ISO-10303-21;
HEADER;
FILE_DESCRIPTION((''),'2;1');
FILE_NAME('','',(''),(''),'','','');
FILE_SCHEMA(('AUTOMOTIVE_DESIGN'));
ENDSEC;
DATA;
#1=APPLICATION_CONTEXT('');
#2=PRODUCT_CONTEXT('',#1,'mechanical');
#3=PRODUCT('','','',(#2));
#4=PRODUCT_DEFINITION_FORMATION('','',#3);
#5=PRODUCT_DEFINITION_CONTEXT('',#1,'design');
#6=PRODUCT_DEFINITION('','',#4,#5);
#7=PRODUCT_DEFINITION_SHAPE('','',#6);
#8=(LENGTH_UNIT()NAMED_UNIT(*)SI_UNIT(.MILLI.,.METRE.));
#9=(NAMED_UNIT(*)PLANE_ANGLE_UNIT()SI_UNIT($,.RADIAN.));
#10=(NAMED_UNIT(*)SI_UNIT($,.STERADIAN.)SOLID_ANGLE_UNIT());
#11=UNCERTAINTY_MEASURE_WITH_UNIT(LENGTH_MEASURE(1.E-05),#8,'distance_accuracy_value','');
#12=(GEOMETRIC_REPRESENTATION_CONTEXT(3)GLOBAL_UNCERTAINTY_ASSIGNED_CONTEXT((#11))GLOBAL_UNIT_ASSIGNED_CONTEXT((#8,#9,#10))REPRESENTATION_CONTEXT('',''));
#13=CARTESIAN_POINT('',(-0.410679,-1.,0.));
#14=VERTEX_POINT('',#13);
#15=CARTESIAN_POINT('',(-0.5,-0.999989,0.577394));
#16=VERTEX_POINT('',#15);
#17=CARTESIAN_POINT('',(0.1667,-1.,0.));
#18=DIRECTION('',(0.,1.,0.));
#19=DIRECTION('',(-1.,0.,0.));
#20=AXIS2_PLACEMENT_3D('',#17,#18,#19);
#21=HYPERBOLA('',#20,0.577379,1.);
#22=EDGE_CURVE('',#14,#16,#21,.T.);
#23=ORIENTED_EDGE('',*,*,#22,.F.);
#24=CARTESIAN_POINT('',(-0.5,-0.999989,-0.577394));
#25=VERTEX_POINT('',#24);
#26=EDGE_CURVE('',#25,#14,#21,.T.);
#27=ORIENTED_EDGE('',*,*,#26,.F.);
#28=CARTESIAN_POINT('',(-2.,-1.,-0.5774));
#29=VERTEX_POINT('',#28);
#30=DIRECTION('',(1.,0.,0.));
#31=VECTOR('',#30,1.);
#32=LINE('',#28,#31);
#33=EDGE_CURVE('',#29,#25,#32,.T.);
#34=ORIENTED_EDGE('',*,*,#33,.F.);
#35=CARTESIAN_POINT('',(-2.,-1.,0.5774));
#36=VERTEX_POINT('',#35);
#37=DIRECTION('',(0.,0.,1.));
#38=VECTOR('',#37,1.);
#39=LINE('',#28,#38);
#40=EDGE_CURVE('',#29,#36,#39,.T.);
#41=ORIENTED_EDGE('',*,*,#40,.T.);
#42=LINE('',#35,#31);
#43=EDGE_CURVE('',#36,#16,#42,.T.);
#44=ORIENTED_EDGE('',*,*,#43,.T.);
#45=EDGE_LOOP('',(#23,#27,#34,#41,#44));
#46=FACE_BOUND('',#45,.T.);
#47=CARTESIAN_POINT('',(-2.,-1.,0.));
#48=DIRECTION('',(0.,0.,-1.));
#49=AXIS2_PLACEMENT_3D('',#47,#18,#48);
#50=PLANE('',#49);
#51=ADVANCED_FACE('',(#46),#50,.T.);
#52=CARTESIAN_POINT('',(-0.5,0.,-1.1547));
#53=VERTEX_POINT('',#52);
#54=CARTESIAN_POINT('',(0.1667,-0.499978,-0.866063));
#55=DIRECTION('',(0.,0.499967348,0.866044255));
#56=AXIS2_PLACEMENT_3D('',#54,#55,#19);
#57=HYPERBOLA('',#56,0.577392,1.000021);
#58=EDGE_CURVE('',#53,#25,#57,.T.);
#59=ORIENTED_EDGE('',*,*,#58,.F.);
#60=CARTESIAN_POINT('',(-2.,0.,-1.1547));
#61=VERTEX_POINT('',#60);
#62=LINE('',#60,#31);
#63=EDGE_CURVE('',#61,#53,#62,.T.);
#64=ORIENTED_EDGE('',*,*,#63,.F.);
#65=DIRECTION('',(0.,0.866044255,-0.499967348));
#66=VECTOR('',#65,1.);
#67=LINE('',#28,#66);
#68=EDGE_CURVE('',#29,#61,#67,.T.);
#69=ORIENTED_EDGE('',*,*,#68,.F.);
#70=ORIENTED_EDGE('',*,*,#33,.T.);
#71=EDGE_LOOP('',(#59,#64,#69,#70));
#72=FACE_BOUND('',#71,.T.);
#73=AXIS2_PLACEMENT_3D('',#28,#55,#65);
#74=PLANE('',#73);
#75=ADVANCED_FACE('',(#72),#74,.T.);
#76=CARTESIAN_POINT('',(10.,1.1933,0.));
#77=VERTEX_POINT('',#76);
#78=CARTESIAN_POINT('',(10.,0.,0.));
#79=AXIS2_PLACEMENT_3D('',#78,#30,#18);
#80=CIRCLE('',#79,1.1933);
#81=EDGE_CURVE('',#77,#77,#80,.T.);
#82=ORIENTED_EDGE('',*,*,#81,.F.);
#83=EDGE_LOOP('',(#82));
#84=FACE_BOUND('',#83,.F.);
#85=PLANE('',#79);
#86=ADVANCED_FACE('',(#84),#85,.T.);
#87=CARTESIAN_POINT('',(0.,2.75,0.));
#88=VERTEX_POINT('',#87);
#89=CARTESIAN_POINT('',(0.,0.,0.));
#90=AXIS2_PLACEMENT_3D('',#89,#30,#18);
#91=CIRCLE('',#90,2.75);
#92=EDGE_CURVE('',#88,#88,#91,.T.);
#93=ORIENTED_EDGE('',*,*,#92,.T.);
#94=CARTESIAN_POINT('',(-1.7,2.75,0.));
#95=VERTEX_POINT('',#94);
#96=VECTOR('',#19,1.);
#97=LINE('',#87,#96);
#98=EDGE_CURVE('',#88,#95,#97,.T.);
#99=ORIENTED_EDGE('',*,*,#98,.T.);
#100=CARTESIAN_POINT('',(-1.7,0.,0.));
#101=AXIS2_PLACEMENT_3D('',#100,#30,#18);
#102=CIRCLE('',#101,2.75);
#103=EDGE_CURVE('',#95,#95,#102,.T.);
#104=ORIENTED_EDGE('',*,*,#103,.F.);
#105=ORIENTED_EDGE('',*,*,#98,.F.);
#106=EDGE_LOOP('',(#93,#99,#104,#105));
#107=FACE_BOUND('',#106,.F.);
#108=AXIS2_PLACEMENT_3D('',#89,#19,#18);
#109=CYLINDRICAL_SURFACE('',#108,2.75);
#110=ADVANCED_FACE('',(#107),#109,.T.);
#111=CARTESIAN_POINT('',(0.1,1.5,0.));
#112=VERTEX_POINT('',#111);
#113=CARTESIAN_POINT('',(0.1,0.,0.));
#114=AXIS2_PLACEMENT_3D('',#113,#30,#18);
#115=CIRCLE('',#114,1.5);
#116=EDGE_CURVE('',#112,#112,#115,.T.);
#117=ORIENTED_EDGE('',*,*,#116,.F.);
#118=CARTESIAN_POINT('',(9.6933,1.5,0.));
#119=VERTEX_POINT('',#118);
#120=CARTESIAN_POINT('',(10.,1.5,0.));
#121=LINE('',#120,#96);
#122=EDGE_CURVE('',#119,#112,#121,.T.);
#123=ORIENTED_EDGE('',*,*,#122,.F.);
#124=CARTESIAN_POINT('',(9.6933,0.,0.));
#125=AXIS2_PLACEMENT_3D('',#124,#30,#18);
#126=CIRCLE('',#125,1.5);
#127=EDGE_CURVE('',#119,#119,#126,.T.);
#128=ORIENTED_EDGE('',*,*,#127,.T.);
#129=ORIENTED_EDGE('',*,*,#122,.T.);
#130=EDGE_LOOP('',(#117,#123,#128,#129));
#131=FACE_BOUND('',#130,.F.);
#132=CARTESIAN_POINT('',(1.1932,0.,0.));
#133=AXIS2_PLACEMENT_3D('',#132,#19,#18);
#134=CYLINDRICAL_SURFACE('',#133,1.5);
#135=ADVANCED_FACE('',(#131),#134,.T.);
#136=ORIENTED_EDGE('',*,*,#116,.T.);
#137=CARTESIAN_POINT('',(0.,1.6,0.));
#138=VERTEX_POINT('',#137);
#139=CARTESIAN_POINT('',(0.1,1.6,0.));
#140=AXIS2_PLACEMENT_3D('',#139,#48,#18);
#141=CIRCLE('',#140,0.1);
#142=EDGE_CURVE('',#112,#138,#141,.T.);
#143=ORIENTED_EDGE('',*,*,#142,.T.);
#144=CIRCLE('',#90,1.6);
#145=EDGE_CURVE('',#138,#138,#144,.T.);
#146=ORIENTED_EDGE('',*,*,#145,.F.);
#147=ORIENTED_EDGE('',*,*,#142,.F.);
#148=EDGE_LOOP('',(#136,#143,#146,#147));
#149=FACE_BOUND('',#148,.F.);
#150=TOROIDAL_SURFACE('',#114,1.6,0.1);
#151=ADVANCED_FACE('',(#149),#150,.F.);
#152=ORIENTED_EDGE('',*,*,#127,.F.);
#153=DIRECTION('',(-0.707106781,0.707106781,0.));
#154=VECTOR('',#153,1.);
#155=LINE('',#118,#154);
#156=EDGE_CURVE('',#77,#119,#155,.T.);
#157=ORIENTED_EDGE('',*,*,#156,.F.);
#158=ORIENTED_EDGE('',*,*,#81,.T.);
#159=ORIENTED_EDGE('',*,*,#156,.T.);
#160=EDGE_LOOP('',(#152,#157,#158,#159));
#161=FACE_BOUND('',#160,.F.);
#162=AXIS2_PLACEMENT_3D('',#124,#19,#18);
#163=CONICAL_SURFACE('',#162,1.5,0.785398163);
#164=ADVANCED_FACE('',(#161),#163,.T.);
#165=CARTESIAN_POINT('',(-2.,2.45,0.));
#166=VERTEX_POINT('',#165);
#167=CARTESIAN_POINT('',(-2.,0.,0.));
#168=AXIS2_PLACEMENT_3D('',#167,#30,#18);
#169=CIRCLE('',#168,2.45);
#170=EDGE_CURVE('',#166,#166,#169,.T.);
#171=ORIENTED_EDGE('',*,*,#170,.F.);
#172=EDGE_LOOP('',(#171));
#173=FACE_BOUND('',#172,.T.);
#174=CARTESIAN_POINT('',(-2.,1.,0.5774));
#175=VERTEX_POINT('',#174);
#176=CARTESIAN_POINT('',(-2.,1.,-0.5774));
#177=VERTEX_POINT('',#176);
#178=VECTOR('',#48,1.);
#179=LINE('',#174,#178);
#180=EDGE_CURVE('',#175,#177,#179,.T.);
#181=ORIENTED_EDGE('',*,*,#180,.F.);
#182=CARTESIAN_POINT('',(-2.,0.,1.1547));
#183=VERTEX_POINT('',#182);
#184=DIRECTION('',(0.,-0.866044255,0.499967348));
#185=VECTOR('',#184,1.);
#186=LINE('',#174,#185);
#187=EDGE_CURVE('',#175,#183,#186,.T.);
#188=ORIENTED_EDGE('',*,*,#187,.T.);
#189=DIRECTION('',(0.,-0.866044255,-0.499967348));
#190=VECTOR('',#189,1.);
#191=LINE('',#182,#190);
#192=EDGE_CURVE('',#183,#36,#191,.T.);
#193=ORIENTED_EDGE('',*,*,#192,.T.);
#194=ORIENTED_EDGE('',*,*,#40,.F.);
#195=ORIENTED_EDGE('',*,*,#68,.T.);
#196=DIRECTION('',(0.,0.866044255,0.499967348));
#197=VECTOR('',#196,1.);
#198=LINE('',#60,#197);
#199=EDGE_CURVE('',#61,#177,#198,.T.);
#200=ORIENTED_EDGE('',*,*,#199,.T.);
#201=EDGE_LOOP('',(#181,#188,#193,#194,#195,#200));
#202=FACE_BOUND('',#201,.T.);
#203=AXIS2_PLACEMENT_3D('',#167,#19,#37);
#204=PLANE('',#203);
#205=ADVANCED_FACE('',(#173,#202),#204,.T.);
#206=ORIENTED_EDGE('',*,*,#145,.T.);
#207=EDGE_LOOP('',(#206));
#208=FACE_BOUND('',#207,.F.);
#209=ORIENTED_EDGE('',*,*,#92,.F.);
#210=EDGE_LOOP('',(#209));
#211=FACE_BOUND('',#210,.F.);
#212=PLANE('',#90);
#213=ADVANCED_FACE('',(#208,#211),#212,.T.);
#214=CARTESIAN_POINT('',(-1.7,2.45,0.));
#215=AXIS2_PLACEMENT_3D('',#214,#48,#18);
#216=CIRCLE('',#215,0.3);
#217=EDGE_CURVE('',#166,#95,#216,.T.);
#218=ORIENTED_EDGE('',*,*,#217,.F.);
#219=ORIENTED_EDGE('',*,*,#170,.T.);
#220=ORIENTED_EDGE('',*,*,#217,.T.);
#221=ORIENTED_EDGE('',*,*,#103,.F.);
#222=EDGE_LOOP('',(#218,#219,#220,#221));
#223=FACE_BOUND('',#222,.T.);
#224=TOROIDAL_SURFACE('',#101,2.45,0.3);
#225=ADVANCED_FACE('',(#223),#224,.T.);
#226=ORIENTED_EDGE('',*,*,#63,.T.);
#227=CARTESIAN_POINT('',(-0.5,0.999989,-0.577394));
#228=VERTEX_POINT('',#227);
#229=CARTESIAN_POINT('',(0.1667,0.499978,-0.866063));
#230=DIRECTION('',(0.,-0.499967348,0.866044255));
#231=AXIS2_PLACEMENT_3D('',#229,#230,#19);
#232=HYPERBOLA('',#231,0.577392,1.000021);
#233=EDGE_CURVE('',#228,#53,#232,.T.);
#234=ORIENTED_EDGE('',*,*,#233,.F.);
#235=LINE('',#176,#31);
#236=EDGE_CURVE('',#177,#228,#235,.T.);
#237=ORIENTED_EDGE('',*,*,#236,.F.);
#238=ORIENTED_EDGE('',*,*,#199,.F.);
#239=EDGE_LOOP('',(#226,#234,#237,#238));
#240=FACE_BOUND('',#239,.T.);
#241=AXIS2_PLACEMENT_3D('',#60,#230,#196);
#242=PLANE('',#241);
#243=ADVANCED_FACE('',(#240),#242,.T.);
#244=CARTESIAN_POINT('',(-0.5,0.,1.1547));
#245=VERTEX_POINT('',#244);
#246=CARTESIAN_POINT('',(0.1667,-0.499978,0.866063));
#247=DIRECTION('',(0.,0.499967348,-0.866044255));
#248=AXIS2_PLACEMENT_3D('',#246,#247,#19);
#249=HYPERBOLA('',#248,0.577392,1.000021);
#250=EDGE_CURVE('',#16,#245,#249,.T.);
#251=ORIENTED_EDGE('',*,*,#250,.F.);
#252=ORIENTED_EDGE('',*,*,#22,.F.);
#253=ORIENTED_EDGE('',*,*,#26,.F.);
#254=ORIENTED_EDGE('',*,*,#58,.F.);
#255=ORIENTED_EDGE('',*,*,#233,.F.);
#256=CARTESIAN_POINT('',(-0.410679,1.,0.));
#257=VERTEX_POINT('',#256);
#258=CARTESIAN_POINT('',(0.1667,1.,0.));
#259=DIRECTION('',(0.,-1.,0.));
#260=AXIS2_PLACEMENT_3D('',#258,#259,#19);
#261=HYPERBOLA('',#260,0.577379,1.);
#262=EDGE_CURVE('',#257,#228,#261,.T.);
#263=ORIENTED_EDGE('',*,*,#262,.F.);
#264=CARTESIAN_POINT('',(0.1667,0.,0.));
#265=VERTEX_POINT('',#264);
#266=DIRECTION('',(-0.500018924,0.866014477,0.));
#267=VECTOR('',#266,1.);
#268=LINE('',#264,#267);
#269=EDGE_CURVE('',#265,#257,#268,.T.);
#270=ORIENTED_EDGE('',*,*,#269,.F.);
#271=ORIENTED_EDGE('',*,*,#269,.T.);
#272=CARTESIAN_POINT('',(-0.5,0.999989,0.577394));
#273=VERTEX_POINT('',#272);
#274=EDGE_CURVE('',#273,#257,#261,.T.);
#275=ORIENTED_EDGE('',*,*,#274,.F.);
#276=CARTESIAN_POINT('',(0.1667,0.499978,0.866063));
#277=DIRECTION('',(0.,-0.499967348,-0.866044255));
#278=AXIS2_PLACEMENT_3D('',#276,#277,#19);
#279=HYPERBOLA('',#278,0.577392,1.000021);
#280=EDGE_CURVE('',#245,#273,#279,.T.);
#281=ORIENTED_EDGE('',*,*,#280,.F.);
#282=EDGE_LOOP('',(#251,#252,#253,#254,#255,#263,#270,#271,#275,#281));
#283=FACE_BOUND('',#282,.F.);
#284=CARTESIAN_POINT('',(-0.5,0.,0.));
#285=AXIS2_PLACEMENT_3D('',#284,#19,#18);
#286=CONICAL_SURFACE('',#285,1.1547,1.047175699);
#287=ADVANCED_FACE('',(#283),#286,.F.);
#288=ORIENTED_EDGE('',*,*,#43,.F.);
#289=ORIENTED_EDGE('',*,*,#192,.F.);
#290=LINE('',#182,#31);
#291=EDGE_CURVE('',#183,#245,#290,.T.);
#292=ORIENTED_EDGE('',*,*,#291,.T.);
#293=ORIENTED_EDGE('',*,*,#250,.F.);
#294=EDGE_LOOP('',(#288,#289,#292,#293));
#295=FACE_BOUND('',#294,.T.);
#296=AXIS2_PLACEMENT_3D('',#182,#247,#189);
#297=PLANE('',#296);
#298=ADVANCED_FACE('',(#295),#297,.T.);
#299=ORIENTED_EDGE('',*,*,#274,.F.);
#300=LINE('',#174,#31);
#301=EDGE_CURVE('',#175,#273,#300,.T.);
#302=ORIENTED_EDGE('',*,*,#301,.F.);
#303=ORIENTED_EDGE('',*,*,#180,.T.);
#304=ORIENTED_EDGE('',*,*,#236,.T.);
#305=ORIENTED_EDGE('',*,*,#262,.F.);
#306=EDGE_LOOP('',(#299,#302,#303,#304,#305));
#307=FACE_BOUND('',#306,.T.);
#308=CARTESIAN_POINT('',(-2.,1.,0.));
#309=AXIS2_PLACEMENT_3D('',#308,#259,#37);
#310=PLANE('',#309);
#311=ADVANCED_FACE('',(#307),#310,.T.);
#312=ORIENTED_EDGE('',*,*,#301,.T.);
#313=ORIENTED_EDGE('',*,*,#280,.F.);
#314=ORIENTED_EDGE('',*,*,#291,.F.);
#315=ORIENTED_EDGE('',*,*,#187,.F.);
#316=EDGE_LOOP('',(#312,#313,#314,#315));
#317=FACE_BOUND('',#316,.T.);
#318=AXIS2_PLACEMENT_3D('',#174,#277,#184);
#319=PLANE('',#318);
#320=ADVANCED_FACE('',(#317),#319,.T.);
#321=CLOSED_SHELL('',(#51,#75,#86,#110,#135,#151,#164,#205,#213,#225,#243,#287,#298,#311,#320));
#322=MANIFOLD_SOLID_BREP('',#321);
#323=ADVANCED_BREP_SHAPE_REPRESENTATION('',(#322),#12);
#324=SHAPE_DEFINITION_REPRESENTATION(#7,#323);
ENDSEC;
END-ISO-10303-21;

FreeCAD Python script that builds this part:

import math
import FreeCAD as App
import Part
import Sketcher

V = App.Vector


def edges_at(feature, points):
    """Names of the edges that pass closest to the given points."""
    edges = feature.Shape.Edges
    near = lambda p: min(range(len(edges)), key=lambda i: edges[i].distToShape(Part.Vertex(*p))[0])
    return sorted({f"Edge{near(p) + 1}" for p in points})

doc = App.newDocument("Part")
body = doc.addObject("PartDesign::Body", "Body")

# Sketch on XY plane
sketch1 = doc.addObject("Sketcher::SketchObject", "Sketch")
body.addObject(sketch1)
sketch1.AttachmentSupport = (doc.XY_Plane, [""])
sketch1.MapMode = "FlatFace"
sketch1.addGeometry(Part.LineSegment(V(0.1667, 0, 0), V(10, 0, 0)), False)
sketch1.addGeometry(Part.LineSegment(V(10, 0, 0), V(10, 1.5, 0)), False)
sketch1.addGeometry(Part.LineSegment(V(10, 1.5, 0), V(0, 1.5, 0)), False)
sketch1.addGeometry(Part.LineSegment(V(0, 1.5, 0), V(0, 2.75, 0)), False)
sketch1.addGeometry(Part.LineSegment(V(0, 2.75, 0), V(-2, 2.75, 0)), False)
sketch1.addGeometry(Part.LineSegment(V(-2, 2.75, 0), V(-2, 1.1547, 0)), False)
sketch1.addGeometry(Part.LineSegment(V(-2, 1.1547, 0), V(-0.5, 1.1547, 0)), False)
sketch1.addGeometry(Part.LineSegment(V(-0.5, 1.1547, 0), V(0.1667, 0, 0)), False)
sketch1.addConstraint(Sketcher.Constraint("Coincident", 0, 2, 1, 1))
sketch1.addConstraint(Sketcher.Constraint("Coincident", 1, 2, 2, 1))
sketch1.addConstraint(Sketcher.Constraint("Coincident", 2, 2, 3, 1))
sketch1.addConstraint(Sketcher.Constraint("Coincident", 3, 2, 4, 1))
sketch1.addConstraint(Sketcher.Constraint("Coincident", 4, 2, 5, 1))
sketch1.addConstraint(Sketcher.Constraint("Coincident", 5, 2, 6, 1))
sketch1.addConstraint(Sketcher.Constraint("Coincident", 6, 2, 7, 1))
sketch1.addConstraint(Sketcher.Constraint("Coincident", 7, 2, 0, 1))
sketch1.addConstraint(Sketcher.Constraint("Horizontal", 0))
sketch1.addConstraint(Sketcher.Constraint("Vertical", 1))
sketch1.addConstraint(Sketcher.Constraint("Horizontal", 2))
sketch1.addConstraint(Sketcher.Constraint("Vertical", 3))
sketch1.addConstraint(Sketcher.Constraint("Horizontal", 4))
sketch1.addConstraint(Sketcher.Constraint("Vertical", 5))
sketch1.addConstraint(Sketcher.Constraint("Horizontal", 6))
sketch1.addConstraint(Sketcher.Constraint("PointOnObject", 0, 2, -1))
sketch1.addConstraint(Sketcher.Constraint("PointOnObject", 2, 2, -2))
sketch1.addConstraint(Sketcher.Constraint("Equal", 6, 1))
sketch1.addConstraint(Sketcher.Constraint("DistanceX", 2, 2, 2, 1, 10.0))
sketch1.addConstraint(Sketcher.Constraint("DistanceX", 4, 2, 4, 1, 2.0))
sketch1.addConstraint(Sketcher.Constraint("DistanceX", 6, 1, 6, 2, 1.5))
sketch1.addConstraint(Sketcher.Constraint("DistanceY", 3, 1, 3, 2, 1.25))
sketch1.addConstraint(Sketcher.Constraint("DistanceX", 0, 1, 0, 2, 9.8333))
sketch1.addConstraint(Sketcher.Constraint("DistanceY", 5, 2, 5, 1, 1.5953))
revolution = doc.addObject("PartDesign::Revolution", "Revolution")
body.addObject(revolution)
revolution.Profile = sketch1
revolution.ReferenceAxis = (sketch1, ["H_Axis"])
revolution.Angle = 360

# Sketch on YZ plane
sketch2 = doc.addObject("Sketcher::SketchObject", "Sketch001")
body.addObject(sketch2)
sketch2.AttachmentSupport = (doc.YZ_Plane, [""])
sketch2.MapMode = "FlatFace"
sketch2.AttachmentOffset = App.Placement(V(0, 0, -2), App.Rotation())
sketch2.addGeometry(Part.LineSegment(V(1, 0.5774, 0), V(0, 1.1547, 0)), False)
sketch2.addGeometry(Part.ArcOfCircle(Part.Circle(V(0, 0, 0), V(0, 0, 1), 1.1547), math.radians(30.002137), math.radians(90)), False)
sketch2.addGeometry(Part.ArcOfCircle(Part.Circle(V(0, 0, 0), V(0, 0, 1), 1.1547), math.radians(90), math.radians(149.997863)), False)
sketch2.addGeometry(Part.LineSegment(V(0, 1.1547, 0), V(-1, 0.5774, 0)), False)
sketch2.addGeometry(Part.ArcOfCircle(Part.Circle(V(0, 0, 0), V(0, 0, 1), 1.1547), math.radians(-30.002137), math.radians(30.002137)), False)
sketch2.addGeometry(Part.LineSegment(V(1, 0.5774, 0), V(1, -0.5774, 0)), False)
sketch2.addGeometry(Part.LineSegment(V(-1, 0.5774, 0), V(-1, -0.5774, 0)), False)
sketch2.addGeometry(Part.ArcOfCircle(Part.Circle(V(0, 0, 0), V(0, 0, 1), 1.1547), math.radians(149.997863), math.radians(210.002137)), False)
sketch2.addGeometry(Part.LineSegment(V(-1, -0.5774, 0), V(0, -1.1547, 0)), False)
sketch2.addGeometry(Part.ArcOfCircle(Part.Circle(V(0, 0, 0), V(0, 0, 1), 1.1547), math.radians(-149.997863), math.radians(-90)), False)
sketch2.addGeometry(Part.ArcOfCircle(Part.Circle(V(0, 0, 0), V(0, 0, 1), 1.1547), math.radians(-90), math.radians(-30.002137)), False)
sketch2.addGeometry(Part.LineSegment(V(0, -1.1547, 0), V(1, -0.5774, 0)), False)
sketch2.addConstraint(Sketcher.Constraint("Coincident", 0, 1, 1, 1))
sketch2.addConstraint(Sketcher.Constraint("Coincident", 1, 2, 0, 2))
sketch2.addConstraint(Sketcher.Constraint("Coincident", 2, 1, 3, 1))
sketch2.addConstraint(Sketcher.Constraint("Coincident", 3, 2, 2, 2))
sketch2.addConstraint(Sketcher.Constraint("Coincident", 4, 1, 5, 2))
sketch2.addConstraint(Sketcher.Constraint("Coincident", 5, 1, 4, 2))
sketch2.addConstraint(Sketcher.Constraint("Coincident", 6, 1, 7, 1))
sketch2.addConstraint(Sketcher.Constraint("Coincident", 7, 2, 6, 2))
sketch2.addConstraint(Sketcher.Constraint("Coincident", 8, 1, 9, 1))
sketch2.addConstraint(Sketcher.Constraint("Coincident", 9, 2, 8, 2))
sketch2.addConstraint(Sketcher.Constraint("Coincident", 10, 1, 11, 1))
sketch2.addConstraint(Sketcher.Constraint("Coincident", 11, 2, 10, 2))
sketch2.addConstraint(Sketcher.Constraint("Vertical", 5))
sketch2.addConstraint(Sketcher.Constraint("Vertical", 6))
sketch2.addConstraint(Sketcher.Constraint("Coincident", 1, 3, -1, 1))
sketch2.addConstraint(Sketcher.Constraint("Coincident", 2, 3, -1, 1))
sketch2.addConstraint(Sketcher.Constraint("Coincident", 4, 3, -1, 1))
sketch2.addConstraint(Sketcher.Constraint("Coincident", 7, 3, -1, 1))
sketch2.addConstraint(Sketcher.Constraint("Coincident", 9, 3, -1, 1))
sketch2.addConstraint(Sketcher.Constraint("Coincident", 10, 3, -1, 1))
sketch2.addConstraint(Sketcher.Constraint("Coincident", 2, 1, 1, 2))
sketch2.addConstraint(Sketcher.Constraint("Coincident", 5, 1, 0, 1))
sketch2.addConstraint(Sketcher.Constraint("Coincident", 6, 1, 3, 2))
sketch2.addConstraint(Sketcher.Constraint("Coincident", 8, 1, 7, 2))
sketch2.addConstraint(Sketcher.Constraint("Coincident", 10, 1, 9, 2))
sketch2.addConstraint(Sketcher.Constraint("PointOnObject", 1, 2, -2))
sketch2.addConstraint(Sketcher.Constraint("PointOnObject", 9, 2, -2))
sketch2.addConstraint(Sketcher.Constraint("Parallel", 0, 8))
sketch2.addConstraint(Sketcher.Constraint("Parallel", 3, 11))
sketch2.addConstraint(Sketcher.Constraint("DistanceX", -1, 1, 0, 1, 1.0))
sketch2.addConstraint(Sketcher.Constraint("Radius", 1, 1.1547))
pad1 = doc.addObject("PartDesign::Pad", "Pad")
body.addObject(pad1)
pad1.Profile = sketch2
pad1.Type = "UpToFirst"
doc.recompute()

fillet = doc.addObject("PartDesign::Fillet", "Fillet")
body.addObject(fillet)
fillet.Base = (pad1, edges_at(pad1, [(-2, -2.75, 0)]))
fillet.Radius = 0.3
doc.recompute()

chamfer = doc.addObject("PartDesign::Chamfer", "Chamfer")
body.addObject(chamfer)
chamfer.Base = (fillet, edges_at(fillet, [(10, -1.5, 0)]))
chamfer.ChamferType = "Two distances"
chamfer.Size = 0.3067
chamfer.Size2 = 0.3067
doc.recompute()

fillet2 = doc.addObject("PartDesign::Fillet", "Fillet001")
body.addObject(fillet2)
fillet2.Base = (chamfer, edges_at(chamfer, [(0, -1.5, 0)]))
fillet2.Radius = 0.1

doc.recompute()
